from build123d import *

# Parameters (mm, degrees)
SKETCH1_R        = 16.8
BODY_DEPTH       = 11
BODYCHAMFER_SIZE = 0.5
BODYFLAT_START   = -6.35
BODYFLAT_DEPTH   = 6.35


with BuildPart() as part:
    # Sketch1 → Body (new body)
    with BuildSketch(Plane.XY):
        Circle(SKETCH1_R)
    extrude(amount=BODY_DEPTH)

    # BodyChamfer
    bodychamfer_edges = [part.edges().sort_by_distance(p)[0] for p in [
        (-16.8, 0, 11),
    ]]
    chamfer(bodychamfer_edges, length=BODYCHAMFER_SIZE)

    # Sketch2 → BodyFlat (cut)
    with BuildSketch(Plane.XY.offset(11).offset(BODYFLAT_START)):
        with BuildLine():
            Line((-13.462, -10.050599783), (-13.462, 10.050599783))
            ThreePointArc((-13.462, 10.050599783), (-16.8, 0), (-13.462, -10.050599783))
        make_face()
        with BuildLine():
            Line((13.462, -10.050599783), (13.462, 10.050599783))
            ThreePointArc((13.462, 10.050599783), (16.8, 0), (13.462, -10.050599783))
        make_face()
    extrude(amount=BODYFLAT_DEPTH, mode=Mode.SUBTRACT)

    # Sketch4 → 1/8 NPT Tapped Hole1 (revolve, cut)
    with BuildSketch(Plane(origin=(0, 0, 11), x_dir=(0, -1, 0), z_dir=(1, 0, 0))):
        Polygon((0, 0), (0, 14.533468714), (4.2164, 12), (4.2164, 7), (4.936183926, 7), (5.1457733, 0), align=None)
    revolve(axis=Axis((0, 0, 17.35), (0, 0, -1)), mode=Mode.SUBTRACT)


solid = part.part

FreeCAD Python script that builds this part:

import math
import FreeCAD as App
import Part
import Sketcher

V = App.Vector
Q = App.Units.Quantity


def edges_at(feature, points):
    """Names of the edges that pass closest to the given points."""
    edges = feature.Shape.Edges
    near = lambda p: min(range(len(edges)), key=lambda i: edges[i].distToShape(Part.Vertex(*p))[0])
    return sorted({f"Edge{near(p) + 1}" for p in points})

doc = App.newDocument("Part")
body = doc.addObject("PartDesign::Body", "Body")

sketch1 = body.newObject("Sketcher::SketchObject", "Sketch")
sketch1.AttachmentSupport = (doc.getObject("XY_Plane"), [""])
sketch1.MapMode = "FlatFace"
sketch1.addGeometry(Part.Circle(V(0, 0, 0), V(0, 0, 1), 16.8), False)
sketch1.addConstraint(Sketcher.Constraint("Coincident", 0, 3, -1, 1))
sketch1.addConstraint(Sketcher.Constraint("Diameter", 0, Q("33.6 mm")))
pad1 = body.newObject("PartDesign::Pad", "Pad")
pad1.Profile = sketch1
pad1.Length = 11
doc.recompute()

chamfer = body.newObject("PartDesign::Chamfer", "Chamfer")
chamfer.Base = (pad1, edges_at(pad1, [(-16.8, 0, 11)]))
chamfer.Size = 0.5

sketch2 = body.newObject("Sketcher::SketchObject", "Sketch001")
sketch2.AttachmentSupport = (doc.getObject("XY_Plane"), [""])
sketch2.MapMode = "FlatFace"
sketch2.AttachmentOffset = App.Placement(V(0, 0, 4.65), App.Rotation())
sketch2.addGeometry(Part.LineSegment(V(-13.462, -10.0506, 0), V(-13.462, 10.0506, 0)), False)
sketch2.addGeometry(Part.ArcOfCircle(Part.Circle(V(0, 0, 0), V(0, 0, 1), 16.8), math.radians(143.255335), math.radians(216.744665)), False)
sketch2.addGeometry(Part.LineSegment(V(13.462, 10.0506, 0), V(13.462, -10.0506, 0)), False)
sketch2.addGeometry(Part.ArcOfCircle(Part.Circle(V(0, 0, 0), V(0, 0, 1), 16.8), math.radians(-36.744665), math.radians(36.744665)), False)
sketch2.addConstraint(Sketcher.Constraint("Coincident", 0, 1, 1, 2))
sketch2.addConstraint(Sketcher.Constraint("Coincident", 1, 1, 0, 2))
sketch2.addConstraint(Sketcher.Constraint("Coincident", 2, 1, 3, 2))
sketch2.addConstraint(Sketcher.Constraint("Coincident", 3, 1, 2, 2))
sketch2.addConstraint(Sketcher.Constraint("Vertical", 0))
sketch2.addConstraint(Sketcher.Constraint("Vertical", 2))
sketch2.addConstraint(Sketcher.Constraint("Coincident", 1, 3, -1, 1))
sketch2.addConstraint(Sketcher.Constraint("Coincident", 3, 3, -1, 1))
sketch2.addConstraint(Sketcher.Constraint("Equal", 1, 3))
sketch2.addConstraint(Sketcher.Constraint("Horizontal", 1, 1, 2, 1))
sketch2.addConstraint(Sketcher.Constraint("Radius", 1, Q("16.8 mm")))
sketch2.addConstraint(Sketcher.Constraint("DistanceY", 0, 1, 0, 2, Q("20.1012 mm")))
pocket1 = body.newObject("PartDesign::Pocket", "Pocket")
pocket1.Profile = sketch2
pocket1.Length = 6.35
pocket1.Reversed = True

sketch3 = body.newObject("Sketcher::SketchObject", "Sketch002")
sketch3.AttachmentSupport = (doc.getObject("YZ_Plane"), [""])
sketch3.MapMode = "FlatFace"
sketch3.addGeometry(Part.LineSegment(V(0, -3.533469, 0), V(0, 11, 0)), False)
sketch3.addGeometry(Part.LineSegment(V(0, 11, 0), V(-5.145773, 11, 0)), False)
sketch3.addGeometry(Part.LineSegment(V(-5.145773, 11, 0), V(-4.936184, 4, 0)), False)
sketch3.addGeometry(Part.LineSegment(V(-4.936184, 4, 0), V(-4.2164, 4, 0)), False)
sketch3.addGeometry(Part.LineSegment(V(-4.2164, 4, 0), V(-4.2164, -1, 0)), False)
sketch3.addGeometry(Part.LineSegment(V(-4.2164, -1, 0), V(0, -3.533469, 0)), False)
sketch3.addConstraint(Sketcher.Constraint("Coincident", 0, 2, 1, 1))
sketch3.addConstraint(Sketcher.Constraint("Coincident", 1, 2, 2, 1))
sketch3.addConstraint(Sketcher.Constraint("Coincident", 2, 2, 3, 1))
sketch3.addConstraint(Sketcher.Constraint("Coincident", 3, 2, 4, 1))
sketch3.addConstraint(Sketcher.Constraint("Coincident", 4, 2, 5, 1))
sketch3.addConstraint(Sketcher.Constraint("Coincident", 5, 2, 0, 1))
sketch3.addConstraint(Sketcher.Constraint("Vertical", 0))
sketch3.addConstraint(Sketcher.Constraint("Horizontal", 1))
sketch3.addConstraint(Sketcher.Constraint("Horizontal", 3))
sketch3.addConstraint(Sketcher.Constraint("Vertical", 4))
sketch3.addConstraint(Sketcher.Constraint("PointOnObject", 0, 2, -2))
sketch3.addConstraint(Sketcher.Constraint("DistanceY", 4, 2, 4, 1, Q("5 mm")))
sketch3.addConstraint(Sketcher.Constraint("Angle", 5, Q("-31 deg")))
sketch3.addConstraint(Sketcher.Constraint("DistanceY", -1, 1, 0, 2, Q("11 mm")))
sketch3.addConstraint(Sketcher.Constraint("DistanceY", -1, 1, 2, 2, Q("4 mm")))
sketch3.addConstraint(Sketcher.Constraint("DistanceY", 0, 1, 0, 2, Q("14.533469 mm")))
sketch3.addConstraint(Sketcher.Constraint("DistanceX", 1, 2, 1, 1, Q("5.145773 mm")))
sketch3.addConstraint(Sketcher.Constraint("DistanceX", 3, 1, 3, 2, Q("0.719784 mm")))
groove = body.newObject("PartDesign::Groove", "Groove")
groove.Profile = sketch3
groove.ReferenceAxis = (sketch3, ["V_Axis"])
groove.Angle = 360

doc.recompute()
